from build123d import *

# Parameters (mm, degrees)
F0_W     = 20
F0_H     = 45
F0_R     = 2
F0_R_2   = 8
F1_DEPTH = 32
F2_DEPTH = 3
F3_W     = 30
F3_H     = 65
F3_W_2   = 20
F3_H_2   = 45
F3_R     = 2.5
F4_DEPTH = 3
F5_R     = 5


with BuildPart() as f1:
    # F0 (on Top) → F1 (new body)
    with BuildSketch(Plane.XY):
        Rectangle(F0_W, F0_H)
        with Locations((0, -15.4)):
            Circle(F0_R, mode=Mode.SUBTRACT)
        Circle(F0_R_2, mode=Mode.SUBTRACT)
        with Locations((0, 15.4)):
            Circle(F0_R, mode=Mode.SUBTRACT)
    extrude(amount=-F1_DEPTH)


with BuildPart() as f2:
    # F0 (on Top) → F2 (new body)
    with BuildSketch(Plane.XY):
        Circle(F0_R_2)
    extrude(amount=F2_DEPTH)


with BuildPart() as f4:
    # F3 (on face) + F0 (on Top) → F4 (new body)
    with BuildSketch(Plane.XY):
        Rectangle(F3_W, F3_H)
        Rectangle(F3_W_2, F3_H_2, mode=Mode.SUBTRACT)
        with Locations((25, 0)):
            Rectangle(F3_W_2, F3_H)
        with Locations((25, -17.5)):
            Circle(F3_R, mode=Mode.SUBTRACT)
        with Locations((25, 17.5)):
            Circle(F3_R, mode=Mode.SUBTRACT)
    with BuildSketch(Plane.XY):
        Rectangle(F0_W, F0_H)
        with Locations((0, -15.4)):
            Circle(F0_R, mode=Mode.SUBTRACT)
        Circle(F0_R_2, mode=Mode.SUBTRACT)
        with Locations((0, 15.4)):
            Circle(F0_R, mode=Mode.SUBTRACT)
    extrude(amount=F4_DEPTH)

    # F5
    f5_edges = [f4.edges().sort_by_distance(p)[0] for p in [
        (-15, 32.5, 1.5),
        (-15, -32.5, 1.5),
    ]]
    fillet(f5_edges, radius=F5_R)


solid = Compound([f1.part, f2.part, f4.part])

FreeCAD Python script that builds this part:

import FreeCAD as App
import Part
import Sketcher

V = App.Vector


def edges_at(feature, points):
    """Names of the edges that pass closest to the given points."""
    edges = feature.Shape.Edges
    near = lambda p: min(range(len(edges)), key=lambda i: edges[i].distToShape(Part.Vertex(*p))[0])
    return sorted({f"Edge{near(p) + 1}" for p in points})


def add_polygon(sketch, points):
    """Adds a closed chain of lines whose ends are joined by coincident constraints."""
    first, n = sketch.GeometryCount, len(points)
    for a, b in zip(points, points[1:] + points[:1]):
        sketch.addGeometry(Part.LineSegment(App.Vector(*a, 0), App.Vector(*b, 0)), False)
    for i in range(n):
        sketch.addConstraint(Sketcher.Constraint("Coincident", first + i, 2, first + (i + 1) % n, 1))

doc = App.newDocument("Part")
params = doc.addObject("Spreadsheet::Sheet", "Params")
for row, (alias, value) in enumerate([
    ("sketch1_diameter", "4 mm"),
    ("sketch1_diameter2", "16 mm"),
    ("sketch1_width", "20 mm"),
    ("sketch1_height", "45 mm"),
    ("pad1_length", "32 mm"),
    ("sketch2_diameter", "16 mm"),
    ("pad2_length", "3 mm"),
    ("sketch3_diameter", "5 mm"),
    ("sketch3_diameter2", "16 mm"),
    ("sketch3_diameter3", "4 mm"),
    ("sketch3_width", "50 mm"),
    ("sketch3_height", "65 mm"),
    ("pad3_length", "3 mm"),
    ("fillet_radius", "5 mm"),
], start=1):
    params.set(f"A{row}", alias)
    params.set(f"B{row}", "=" + value)
    params.setAlias(f"B{row}", alias)

body = doc.addObject("PartDesign::Body", "Body")

# Sketch on XY plane
sketch1 = body.newObject("Sketcher::SketchObject", "Sketch")
sketch1.AttachmentSupport = (doc.getObject("XY_Plane"), [""])
sketch1.MapMode = "FlatFace"
add_polygon(sketch1, [(-10, 22.5), (-10, -22.5), (10, -22.5), (10, 22.5)])  # lines 0-3
sketch1.addGeometry(Part.Circle(V(0, -15.4, 0), V(0, 0, 1), 2), False)  # 4
sketch1.addGeometry(Part.Circle(V(0, 0, 0), V(0, 0, 1), 8), False)  # 5
sketch1.addGeometry(Part.Circle(V(0, 15.4, 0), V(0, 0, 1), 2), False)  # 6
sketch1.addConstraint(Sketcher.Constraint("Vertical", 0))
sketch1.addConstraint(Sketcher.Constraint("Horizontal", 1))
sketch1.addConstraint(Sketcher.Constraint("Vertical", 2))
sketch1.addConstraint(Sketcher.Constraint("Horizontal", 3))
sketch1.addConstraint(Sketcher.Constraint("Coincident", 5, 3, -1, 1))
sketch1.addConstraint(Sketcher.Constraint("Equal", 4, 6))
sketch1.addConstraint(Sketcher.Constraint("Symmetric", 4, 3, 6, 3, -1, 1))
sketch1.addConstraint(Sketcher.Constraint("Symmetric", 0, 2, 2, 2, -1, 1))
sketch1.addConstraint(Sketcher.Constraint("PointOnObject", 4, 3, -2))
sketch1.addConstraint(Sketcher.Constraint("Diameter", 4, 4.0))
sketch1.addConstraint(Sketcher.Constraint("Diameter", 5, 16.0))
sketch1.addConstraint(Sketcher.Constraint("DistanceX", 1, 1, 1, 2, 20.0))
sketch1.addConstraint(Sketcher.Constraint("DistanceY", 0, 2, 0, 1, 45.0))
sketch1.addConstraint(Sketcher.Constraint("DistanceY", 4, 3, -1, 1, 15.4))
sketch1.setExpression("Constraints[13]", "Params.sketch1_diameter")
sketch1.setExpression("Constraints[14]", "Params.sketch1_diameter2")
sketch1.setExpression("Constraints[15]", "Params.sketch1_width")
sketch1.setExpression("Constraints[16]", "Params.sketch1_height")
pad1 = body.newObject("PartDesign::Pad", "Pad")
pad1.Profile = sketch1
pad1.setExpression("Length", "Params.pad1_length")
pad1.Reversed = True
body2 = doc.addObject("PartDesign::Body", "Body001")

# Sketch on XY plane
sketch2 = body2.newObject("Sketcher::SketchObject", "Sketch001")
sketch2.AttachmentSupport = (doc.getObject("XY_Plane001"), [""])
sketch2.MapMode = "FlatFace"
sketch2.addGeometry(Part.Circle(V(0, 0, 0), V(0, 0, 1), 8), False)
sketch2.addConstraint(Sketcher.Constraint("Coincident", 0, 3, -1, 1))
sketch2.addConstraint(Sketcher.Constraint("Diameter", 0, 16.0))
sketch2.setExpression("Constraints[1]", "Params.sketch2_diameter")
pad2 = body2.newObject("PartDesign::Pad", "Pad001")
pad2.Profile = sketch2
pad2.setExpression("Length", "Params.pad2_length")
body3 = doc.addObject("PartDesign::Body", "Body002")

# Sketch on XY plane
sketch3 = body3.newObject("Sketcher::SketchObject", "Sketch002")
sketch3.AttachmentSupport = (doc.getObject("XY_Plane002"), [""])
sketch3.MapMode = "FlatFace"
add_polygon(sketch3, [(-15, 32.5), (-15, -32.5), (35, -32.5), (35, 32.5)])  # lines 0-3
sketch3.addGeometry(Part.Circle(V(25, -17.5, 0), V(0, 0, 1), 2.5), False)  # 4
sketch3.addGeometry(Part.Circle(V(25, 17.5, 0), V(0, 0, 1), 2.5), False)  # 5
sketch3.addGeometry(Part.Circle(V(0, 0, 0), V(0, 0, 1), 8), False)  # 6
sketch3.addGeometry(Part.Circle(V(0, 15.4, 0), V(0, 0, 1), 2), False)  # 7
sketch3.addGeometry(Part.Circle(V(0, -15.4, 0), V(0, 0, 1), 2), False)  # 8
sketch3.addConstraint(Sketcher.Constraint("Vertical", 0))
sketch3.addConstraint(Sketcher.Constraint("Horizontal", 1))
sketch3.addConstraint(Sketcher.Constraint("Vertical", 2))
sketch3.addConstraint(Sketcher.Constraint("Horizontal", 3))
sketch3.addConstraint(Sketcher.Constraint("Coincident", 6, 3, -1, 1))
sketch3.addConstraint(Sketcher.Constraint("Equal", 4, 5))
sketch3.addConstraint(Sketcher.Constraint("Equal", 7, 8))
sketch3.addConstraint(Sketcher.Constraint("Symmetric", 7, 3, 8, 3, -1, 1))
sketch3.addConstraint(Sketcher.Constraint("Symmetric", 4, 3, 5, 3, -1))
sketch3.addConstraint(Sketcher.Constraint("PointOnObject", 7, 3, -2))
sketch3.addConstraint(Sketcher.Constraint("Diameter", 4, 5.0))
sketch3.addConstraint(Sketcher.Constraint("Diameter", 6, 16.0))
sketch3.addConstraint(Sketcher.Constraint("Diameter", 7, 4.0))
sketch3.addConstraint(Sketcher.Constraint("DistanceX", 1, 1, 1, 2, 50.0))
sketch3.addConstraint(Sketcher.Constraint("DistanceY", 0, 2, 0, 1, 65.0))
sketch3.addConstraint(Sketcher.Constraint("DistanceX", -1, 1, 4, 3, 25.0))
sketch3.addConstraint(Sketcher.Constraint("DistanceX", 0, 2, -1, 1, 15.0))
sketch3.addConstraint(Sketcher.Constraint("DistanceY", 4, 3, 5, 3, 35.0))
sketch3.addConstraint(Sketcher.Constraint("DistanceY", 0, 2, 4, 3, 15.0))
sketch3.addConstraint(Sketcher.Constraint("DistanceY", -1, 1, 7, 3, 15.4))
sketch3.setExpression("Constraints[14]", "Params.sketch3_diameter")
sketch3.setExpression("Constraints[15]", "Params.sketch3_diameter2")
sketch3.setExpression("Constraints[16]", "Params.sketch3_diameter3")
sketch3.setExpression("Constraints[17]", "Params.sketch3_width")
sketch3.setExpression("Constraints[18]", "Params.sketch3_height")
pad3 = body3.newObject("PartDesign::Pad", "Pad002")
pad3.Profile = sketch3
pad3.setExpression("Length", "Params.pad3_length")
doc.recompute()

fillet = body3.newObject("PartDesign::Fillet", "Fillet")
fillet.Base = (pad3, edges_at(pad3, [(-15, 32.5, 1.5), (-15, -32.5, 1.5)]))
fillet.setExpression("Radius", "Params.fillet_radius")

doc.recompute()
